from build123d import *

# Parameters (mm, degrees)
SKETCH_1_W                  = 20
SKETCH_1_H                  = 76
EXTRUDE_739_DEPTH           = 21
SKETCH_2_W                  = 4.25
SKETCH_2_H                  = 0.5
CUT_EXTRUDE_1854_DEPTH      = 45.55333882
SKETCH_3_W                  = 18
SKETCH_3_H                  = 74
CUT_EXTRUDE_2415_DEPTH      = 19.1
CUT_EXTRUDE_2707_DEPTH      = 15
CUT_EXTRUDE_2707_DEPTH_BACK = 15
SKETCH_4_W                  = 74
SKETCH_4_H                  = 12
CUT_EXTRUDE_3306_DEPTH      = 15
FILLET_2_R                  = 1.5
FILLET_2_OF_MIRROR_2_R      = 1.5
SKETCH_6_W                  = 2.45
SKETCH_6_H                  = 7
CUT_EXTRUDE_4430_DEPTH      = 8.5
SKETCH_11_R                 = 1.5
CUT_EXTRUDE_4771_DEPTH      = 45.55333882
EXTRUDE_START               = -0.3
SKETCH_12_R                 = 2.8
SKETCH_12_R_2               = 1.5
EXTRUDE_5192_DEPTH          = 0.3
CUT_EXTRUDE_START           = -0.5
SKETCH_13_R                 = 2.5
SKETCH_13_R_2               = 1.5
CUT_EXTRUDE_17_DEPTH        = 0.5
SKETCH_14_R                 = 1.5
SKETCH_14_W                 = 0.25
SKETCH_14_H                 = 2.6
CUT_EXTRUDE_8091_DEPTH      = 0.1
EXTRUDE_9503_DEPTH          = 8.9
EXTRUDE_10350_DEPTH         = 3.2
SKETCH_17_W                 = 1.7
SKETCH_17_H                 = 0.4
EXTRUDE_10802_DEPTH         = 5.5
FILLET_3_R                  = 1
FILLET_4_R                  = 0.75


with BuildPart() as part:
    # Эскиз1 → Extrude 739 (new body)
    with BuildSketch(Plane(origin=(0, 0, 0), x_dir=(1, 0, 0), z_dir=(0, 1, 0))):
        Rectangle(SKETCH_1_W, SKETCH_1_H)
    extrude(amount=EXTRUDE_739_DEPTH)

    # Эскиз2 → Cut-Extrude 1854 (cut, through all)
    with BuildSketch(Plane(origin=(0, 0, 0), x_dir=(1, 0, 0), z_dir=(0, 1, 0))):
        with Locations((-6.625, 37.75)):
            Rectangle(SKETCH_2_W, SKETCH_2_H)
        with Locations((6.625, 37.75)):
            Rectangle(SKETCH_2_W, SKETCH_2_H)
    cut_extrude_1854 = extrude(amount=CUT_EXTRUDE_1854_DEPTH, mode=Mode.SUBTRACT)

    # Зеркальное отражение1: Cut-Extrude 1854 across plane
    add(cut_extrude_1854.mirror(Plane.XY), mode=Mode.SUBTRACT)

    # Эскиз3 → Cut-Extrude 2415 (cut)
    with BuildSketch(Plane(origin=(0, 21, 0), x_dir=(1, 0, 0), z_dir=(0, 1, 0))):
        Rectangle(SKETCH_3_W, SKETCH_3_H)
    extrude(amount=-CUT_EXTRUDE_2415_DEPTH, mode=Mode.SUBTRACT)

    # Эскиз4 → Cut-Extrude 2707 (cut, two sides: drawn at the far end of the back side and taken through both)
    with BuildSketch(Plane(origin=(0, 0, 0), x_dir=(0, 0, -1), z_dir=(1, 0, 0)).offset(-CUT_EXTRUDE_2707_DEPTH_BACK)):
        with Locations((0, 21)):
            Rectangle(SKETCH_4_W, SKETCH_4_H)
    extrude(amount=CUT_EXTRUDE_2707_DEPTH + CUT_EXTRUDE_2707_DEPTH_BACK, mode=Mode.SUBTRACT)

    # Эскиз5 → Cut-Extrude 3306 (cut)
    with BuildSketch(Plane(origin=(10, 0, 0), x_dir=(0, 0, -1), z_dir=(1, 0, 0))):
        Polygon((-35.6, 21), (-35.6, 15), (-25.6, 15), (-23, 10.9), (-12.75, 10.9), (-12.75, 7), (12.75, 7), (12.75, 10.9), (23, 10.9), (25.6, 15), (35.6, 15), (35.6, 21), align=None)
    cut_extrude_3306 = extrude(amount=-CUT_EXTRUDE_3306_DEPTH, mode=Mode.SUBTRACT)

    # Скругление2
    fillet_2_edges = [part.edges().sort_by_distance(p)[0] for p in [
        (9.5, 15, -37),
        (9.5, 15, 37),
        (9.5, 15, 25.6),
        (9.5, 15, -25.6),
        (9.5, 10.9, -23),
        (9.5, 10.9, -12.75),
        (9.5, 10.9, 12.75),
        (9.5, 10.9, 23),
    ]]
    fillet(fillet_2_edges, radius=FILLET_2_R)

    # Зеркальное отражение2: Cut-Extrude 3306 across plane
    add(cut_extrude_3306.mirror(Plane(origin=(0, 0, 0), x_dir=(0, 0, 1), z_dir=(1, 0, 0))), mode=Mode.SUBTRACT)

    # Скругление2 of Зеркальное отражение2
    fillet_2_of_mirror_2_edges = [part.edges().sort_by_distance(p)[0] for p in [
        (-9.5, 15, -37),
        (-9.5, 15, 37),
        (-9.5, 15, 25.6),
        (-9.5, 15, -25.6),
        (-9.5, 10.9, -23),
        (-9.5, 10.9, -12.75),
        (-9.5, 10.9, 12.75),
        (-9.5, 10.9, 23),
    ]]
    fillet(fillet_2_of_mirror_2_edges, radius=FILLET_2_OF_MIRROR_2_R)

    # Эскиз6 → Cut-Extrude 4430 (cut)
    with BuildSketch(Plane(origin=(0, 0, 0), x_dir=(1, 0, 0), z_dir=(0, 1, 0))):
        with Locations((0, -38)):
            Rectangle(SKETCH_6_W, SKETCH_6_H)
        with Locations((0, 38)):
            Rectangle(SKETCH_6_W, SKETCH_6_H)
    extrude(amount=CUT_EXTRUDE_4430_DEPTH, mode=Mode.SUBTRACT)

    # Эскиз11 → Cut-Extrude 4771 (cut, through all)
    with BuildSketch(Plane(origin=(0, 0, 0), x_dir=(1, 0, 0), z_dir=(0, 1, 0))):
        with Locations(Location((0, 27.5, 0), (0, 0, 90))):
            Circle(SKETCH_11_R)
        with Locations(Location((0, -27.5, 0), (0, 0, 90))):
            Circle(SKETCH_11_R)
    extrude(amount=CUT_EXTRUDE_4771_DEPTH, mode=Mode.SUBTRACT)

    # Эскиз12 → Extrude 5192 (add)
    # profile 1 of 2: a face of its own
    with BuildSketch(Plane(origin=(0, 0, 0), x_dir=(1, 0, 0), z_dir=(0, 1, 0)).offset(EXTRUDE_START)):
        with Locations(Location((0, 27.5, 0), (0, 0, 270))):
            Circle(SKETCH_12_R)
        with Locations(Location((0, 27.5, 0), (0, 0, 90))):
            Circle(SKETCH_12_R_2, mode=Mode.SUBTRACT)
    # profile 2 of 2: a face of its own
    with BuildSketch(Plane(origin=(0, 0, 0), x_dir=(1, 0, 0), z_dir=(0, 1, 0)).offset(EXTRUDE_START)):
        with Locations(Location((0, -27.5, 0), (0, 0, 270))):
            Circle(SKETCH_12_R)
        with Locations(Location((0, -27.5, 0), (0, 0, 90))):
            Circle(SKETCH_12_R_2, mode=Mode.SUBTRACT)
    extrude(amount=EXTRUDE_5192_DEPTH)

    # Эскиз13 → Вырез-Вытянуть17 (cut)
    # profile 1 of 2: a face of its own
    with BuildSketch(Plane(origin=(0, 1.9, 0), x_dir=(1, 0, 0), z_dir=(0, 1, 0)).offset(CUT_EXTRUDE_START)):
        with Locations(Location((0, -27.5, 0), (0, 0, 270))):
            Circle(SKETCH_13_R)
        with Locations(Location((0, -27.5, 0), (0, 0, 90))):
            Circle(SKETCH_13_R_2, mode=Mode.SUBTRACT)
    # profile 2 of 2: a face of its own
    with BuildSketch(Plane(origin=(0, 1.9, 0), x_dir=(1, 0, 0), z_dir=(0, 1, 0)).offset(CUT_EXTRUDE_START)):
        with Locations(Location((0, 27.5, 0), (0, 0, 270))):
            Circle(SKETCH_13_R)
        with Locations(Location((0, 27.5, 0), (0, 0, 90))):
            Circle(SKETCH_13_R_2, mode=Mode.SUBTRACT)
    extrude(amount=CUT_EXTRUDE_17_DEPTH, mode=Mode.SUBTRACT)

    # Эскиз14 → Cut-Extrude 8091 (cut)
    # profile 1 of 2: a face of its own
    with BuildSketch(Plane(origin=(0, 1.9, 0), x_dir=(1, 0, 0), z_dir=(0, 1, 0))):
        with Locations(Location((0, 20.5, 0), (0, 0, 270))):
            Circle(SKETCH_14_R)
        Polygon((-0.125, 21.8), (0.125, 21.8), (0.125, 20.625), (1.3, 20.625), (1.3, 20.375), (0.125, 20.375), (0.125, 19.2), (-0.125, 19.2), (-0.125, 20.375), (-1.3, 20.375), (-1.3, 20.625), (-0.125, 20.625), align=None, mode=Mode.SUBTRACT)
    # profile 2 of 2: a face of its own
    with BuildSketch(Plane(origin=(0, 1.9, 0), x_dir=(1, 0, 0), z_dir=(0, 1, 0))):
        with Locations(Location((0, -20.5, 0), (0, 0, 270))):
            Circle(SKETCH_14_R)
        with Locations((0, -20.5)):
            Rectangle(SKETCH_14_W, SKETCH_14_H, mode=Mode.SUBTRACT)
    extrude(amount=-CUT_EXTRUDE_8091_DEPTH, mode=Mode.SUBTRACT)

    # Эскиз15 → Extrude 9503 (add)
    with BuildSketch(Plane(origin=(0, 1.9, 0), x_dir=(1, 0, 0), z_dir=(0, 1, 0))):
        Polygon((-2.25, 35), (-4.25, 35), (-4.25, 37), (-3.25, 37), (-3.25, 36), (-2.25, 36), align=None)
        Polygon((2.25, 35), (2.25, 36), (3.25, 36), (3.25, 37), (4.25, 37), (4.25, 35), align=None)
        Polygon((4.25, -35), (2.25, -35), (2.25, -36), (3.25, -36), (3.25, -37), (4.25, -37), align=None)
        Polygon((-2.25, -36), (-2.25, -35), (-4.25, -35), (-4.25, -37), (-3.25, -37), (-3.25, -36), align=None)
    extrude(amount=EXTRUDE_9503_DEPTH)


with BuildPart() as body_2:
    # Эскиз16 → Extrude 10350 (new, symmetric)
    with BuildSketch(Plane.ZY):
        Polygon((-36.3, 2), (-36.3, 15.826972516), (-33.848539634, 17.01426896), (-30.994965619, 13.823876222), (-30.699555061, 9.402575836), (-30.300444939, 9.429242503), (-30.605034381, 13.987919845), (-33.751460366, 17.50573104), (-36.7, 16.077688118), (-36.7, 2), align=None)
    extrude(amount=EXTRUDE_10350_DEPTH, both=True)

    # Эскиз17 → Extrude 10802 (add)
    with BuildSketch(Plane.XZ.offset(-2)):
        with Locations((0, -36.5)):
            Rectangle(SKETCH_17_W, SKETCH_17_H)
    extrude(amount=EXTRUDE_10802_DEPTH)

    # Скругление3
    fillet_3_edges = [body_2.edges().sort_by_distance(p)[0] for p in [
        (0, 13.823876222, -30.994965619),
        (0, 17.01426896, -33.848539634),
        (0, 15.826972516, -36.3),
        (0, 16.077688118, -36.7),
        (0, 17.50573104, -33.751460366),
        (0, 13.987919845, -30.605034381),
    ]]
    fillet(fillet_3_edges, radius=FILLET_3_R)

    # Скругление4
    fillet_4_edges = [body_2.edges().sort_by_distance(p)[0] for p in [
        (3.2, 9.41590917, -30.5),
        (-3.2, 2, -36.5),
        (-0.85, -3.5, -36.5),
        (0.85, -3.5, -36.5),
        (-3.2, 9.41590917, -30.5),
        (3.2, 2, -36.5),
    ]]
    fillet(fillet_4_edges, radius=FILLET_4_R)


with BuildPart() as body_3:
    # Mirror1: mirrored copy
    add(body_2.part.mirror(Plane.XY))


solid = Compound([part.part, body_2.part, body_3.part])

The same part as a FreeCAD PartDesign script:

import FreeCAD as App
import Part
import Sketcher
from FreeCAD import Vector


def edges_at(feature, points):
    """Names of the edges that pass closest to the given points."""
    edges = feature.Shape.Edges
    near = lambda p: min(range(len(edges)), key=lambda i: edges[i].distToShape(Part.Vertex(*p))[0])
    return sorted({f"Edge{near(p) + 1}" for p in points})


def add_polygon(sketch, points):
    """Adds a closed chain of lines whose ends are joined by coincident constraints."""
    first, n = sketch.GeometryCount, len(points)
    for a, b in zip(points, points[1:] + points[:1]):
        sketch.addGeometry(Part.LineSegment(App.Vector(*a, 0), App.Vector(*b, 0)), False)
    for i in range(n):
        sketch.addConstraint(Sketcher.Constraint("Coincident", first + i, 2, first + (i + 1) % n, 1))

doc = App.newDocument("Part")
body = doc.addObject("PartDesign::Body", "Body")

# Sketch on XZ plane
sketch1 = body.newObject("Sketcher::SketchObject", "Sketch")
sketch1.AttachmentSupport = (doc.getObject("XZ_Plane"), [""])
sketch1.MapMode = "FlatFace"
add_polygon(sketch1, [(-10, -38), (-10, 38), (10, 38), (10, -38)])  # lines 0-3
sketch1.addConstraint([
    Sketcher.Constraint("Vertical", 0),
    Sketcher.Constraint("Horizontal", 1),
    Sketcher.Constraint("Vertical", 2),
    Sketcher.Constraint("Horizontal", 3),
    Sketcher.Constraint("Symmetric", 0, 2, 2, 2, -1, 1),
    Sketcher.Constraint("DistanceX", 1, 1, 1, 2, 20.0),
    Sketcher.Constraint("DistanceY", 0, 1, 0, 2, 76.0),
])
pad1 = body.newObject("PartDesign::Pad", "Pad")
pad1.Profile = sketch1
pad1.Length = 21
pad1.Reversed = True

# Sketch on XZ plane
sketch2 = body.newObject("Sketcher::SketchObject", "Sketch001")
sketch2.AttachmentSupport = (doc.getObject("XZ_Plane"), [""])
sketch2.MapMode = "FlatFace"
add_polygon(sketch2, [(-8.8, -38), (-8.8, -37.5), (-4.5, -37.5), (-4.5, -38)])  # lines 0-3
add_polygon(sketch2, [(4.5, -38), (4.5, -37.5), (8.8, -37.5), (8.8, -38)])  # lines 4-7
sketch2.addConstraint([
    Sketcher.Constraint("Vertical", 0),
    Sketcher.Constraint("Horizontal", 1),
    Sketcher.Constraint("Vertical", 2),
    Sketcher.Constraint("Horizontal", 3),
    Sketcher.Constraint("Vertical", 4),
    Sketcher.Constraint("Horizontal", 5),
    Sketcher.Constraint("Vertical", 6),
    Sketcher.Constraint("Horizontal", 7),
    Sketcher.Constraint("Symmetric", 1, 2, 4, 2, -2),
    Sketcher.Constraint("Symmetric", 3, 2, 6, 2, -2),
    Sketcher.Constraint("DistanceY", 0, 1, 0, 2, 0.5),
    Sketcher.Constraint("DistanceY", 2, 2, -1, 1, 38.0),
    Sketcher.Constraint("DistanceX", 1, 2, 4, 2, 9.0),
    Sketcher.Constraint("DistanceX", 1, 1, 1, 2, 4.25),
])
pocket1 = body.newObject("PartDesign::Pocket", "Pocket")
pocket1.Profile = sketch2
pocket1.Type = "ThroughAll"
doc.recompute()

mirrored = body.newObject("PartDesign::Mirrored", "Mirrored")
mirrored.Originals = [pocket1]
mirrored.MirrorPlane = (doc.getObject("XY_Plane"), [""])
body.Tip = mirrored

# Sketch on XZ plane
sketch3 = body.newObject("Sketcher::SketchObject", "Sketch002")
sketch3.AttachmentSupport = (doc.getObject("XZ_Plane"), [""])
sketch3.MapMode = "FlatFace"
sketch3.AttachmentOffset = App.Placement(Vector(0, 0, -21), App.Rotation())
add_polygon(sketch3, [(-9, -37), (-9, 37), (9, 37), (9, -37)])  # lines 0-3
sketch3.addConstraint([
    Sketcher.Constraint("Vertical", 0),
    Sketcher.Constraint("Horizontal", 1),
    Sketcher.Constraint("Vertical", 2),
    Sketcher.Constraint("Horizontal", 3),
    Sketcher.Constraint("Symmetric", 0, 2, 2, 2, -1, 1),
    Sketcher.Constraint("DistanceX", 1, 1, 1, 2, 18.0),
    Sketcher.Constraint("DistanceY", 0, 1, 0, 2, 74.0),
])
pocket2 = body.newObject("PartDesign::Pocket", "Pocket001")
pocket2.Profile = sketch3
pocket2.Length = 19.1
pocket2.Reversed = True

# Sketch on YZ plane
sketch4 = body.newObject("Sketcher::SketchObject", "Sketch003")
sketch4.AttachmentSupport = (doc.getObject("YZ_Plane"), [""])
sketch4.MapMode = "FlatFace"
add_polygon(sketch4, [(27, 37), (15, 37), (15, -37), (27, -37)])  # lines 0-3
sketch4.addConstraint([
    Sketcher.Constraint("Horizontal", 0),
    Sketcher.Constraint("Vertical", 1),
    Sketcher.Constraint("Horizontal", 2),
    Sketcher.Constraint("Vertical", 3),
    Sketcher.Constraint("DistanceX", 0, 2, 0, 1, 12.0),
    Sketcher.Constraint("DistanceY", 1, 2, 1, 1, 74.0),
    Sketcher.Constraint("DistanceX", -1, 1, 0, 2, 15.0),
    Sketcher.Constraint("DistanceY", -1, 1, 0, 2, 37.0),
])
pocket3 = body.newObject("PartDesign::Pocket", "Pocket002")
pocket3.Profile = sketch4
pocket3.Type = "ThroughAll"
pocket3.Midplane = True

# Sketch on YZ plane
sketch5 = body.newObject("Sketcher::SketchObject", "Sketch004")
sketch5.AttachmentSupport = (doc.getObject("YZ_Plane"), [""])
sketch5.MapMode = "FlatFace"
sketch5.AttachmentOffset = App.Placement(Vector(0, 0, 10), App.Rotation())
add_polygon(sketch5, [(21, 35.6), (15, 35.6), (15, 25.6), (10.9, 23), (10.9, 12.8), (7, 12.8), (7, -12.8), (10.9, -12.8), (10.9, -23), (15, -25.6), (15, -35.6), (21, -35.6)])  # lines 0-11
sketch5.addConstraint([
    Sketcher.Constraint("Horizontal", 0),
    Sketcher.Constraint("Vertical", 1),
    Sketcher.Constraint("Vertical", 3),
    Sketcher.Constraint("Horizontal", 4),
    Sketcher.Constraint("Vertical", 5),
    Sketcher.Constraint("Horizontal", 6),
    Sketcher.Constraint("Vertical", 7),
    Sketcher.Constraint("Vertical", 9),
    Sketcher.Constraint("Horizontal", 10),
    Sketcher.Constraint("Vertical", 11),
    Sketcher.Constraint("Symmetric", 3, 2, 6, 2, -1),
    Sketcher.Constraint("Symmetric", 1, 2, 8, 2, -1),
    Sketcher.Constraint("Equal", 3, 7),
    Sketcher.Constraint("Equal", 1, 9),
    Sketcher.Constraint("DistanceX", 0, 2, 0, 1, 6.0),
    Sketcher.Constraint("DistanceY", 1, 2, 1, 1, 10.0),
    Sketcher.Constraint("DistanceX", 4, 2, 4, 1, 3.9),
    Sketcher.Constraint("DistanceY", 5, 2, 5, 1, 25.5),
    Sketcher.Constraint("DistanceY", 11, 1, 11, 2, 71.2),
    Sketcher.Constraint("DistanceX", -1, 1, 0, 2, 15.0),
    Sketcher.Constraint("DistanceY", -1, 1, 2, 2, 23.0),
    Sketcher.Constraint("DistanceX", -1, 1, 4, 2, 7.0),
])
pocket4 = body.newObject("PartDesign::Pocket", "Pocket003")
pocket4.Profile = sketch5
pocket4.Length = 15
doc.recompute()

fillet = body.newObject("PartDesign::Fillet", "Fillet")
fillet.Base = (pocket4, edges_at(pocket4, [
    (9.5, 15, -37),
    (9.5, 15, 37),
    (9.5, 15, 25.6),
    (9.5, 15, -25.6),
    (9.5, 10.9, -23),
    (9.5, 10.9, -12.75),
    (9.5, 10.9, 12.75),
    (9.5, 10.9, 23),
]))
fillet.Radius = 1.5
doc.recompute()

mirrored2 = body.newObject("PartDesign::Mirrored", "Mirrored001")
mirrored2.Originals = [pocket4]
mirrored2.MirrorPlane = (doc.getObject("YZ_Plane"), [""])
body.Tip = mirrored2
doc.recompute()

fillet2 = body.newObject("PartDesign::Fillet", "Fillet001")
fillet2.Base = (mirrored2, edges_at(mirrored2, [
    (-9.5, 15, -37),
    (-9.5, 15, 37),
    (-9.5, 15, 25.6),
    (-9.5, 15, -25.6),
    (-9.5, 10.9, -23),
    (-9.5, 10.9, -12.75),
    (-9.5, 10.9, 12.75),
    (-9.5, 10.9, 23),
]))
fillet2.Radius = 1.5

# Sketch on XZ plane
sketch6 = body.newObject("Sketcher::SketchObject", "Sketch005")
sketch6.AttachmentSupport = (doc.getObject("XZ_Plane"), [""])
sketch6.MapMode = "FlatFace"
add_polygon(sketch6, [(-1.2, 34.5), (-1.2, 41.5), (1.2, 41.5), (1.2, 34.5)])  # lines 0-3
add_polygon(sketch6, [(-1.2, -41.5), (-1.2, -34.5), (1.2, -34.5), (1.2, -41.5)])  # lines 4-7
sketch6.addConstraint([
    Sketcher.Constraint("Vertical", 0),
    Sketcher.Constraint("Horizontal", 1),
    Sketcher.Constraint("Vertical", 2),
    Sketcher.Constraint("Horizontal", 3),
    Sketcher.Constraint("Vertical", 4),
    Sketcher.Constraint("Horizontal", 5),
    Sketcher.Constraint("Vertical", 6),
    Sketcher.Constraint("Horizontal", 7),
    Sketcher.Constraint("Symmetric", 2, 2, 4, 2, -1, 1),
    Sketcher.Constraint("Symmetric", 0, 2, 6, 2, -1, 1),
    Sketcher.Constraint("Vertical", 3, 2, 4, 2),
    Sketcher.Constraint("DistanceY", 0, 1, 0, 2, 7.0),
    Sketcher.Constraint("DistanceY", 4, 2, 3, 2, 69.0),
    Sketcher.Constraint("DistanceX", 1, 1, 1, 2, 2.45),
])
pocket5 = body.newObject("PartDesign::Pocket", "Pocket004")
pocket5.Profile = sketch6
pocket5.Length = 8.5

# Sketch on XZ plane
sketch7 = body.newObject("Sketcher::SketchObject", "Sketch006")
sketch7.AttachmentSupport = (doc.getObject("XZ_Plane"), [""])
sketch7.MapMode = "FlatFace"
sketch7.addGeometry([
    Part.Circle(Vector(0, -27.5, 0), Vector(0, 0, 1), 1.5),
    Part.Circle(Vector(0, 27.5, 0), Vector(0, 0, 1), 1.5),
], False)
sketch7.addConstraint([
    Sketcher.Constraint("Equal", 0, 1),
    Sketcher.Constraint("Symmetric", 0, 3, 1, 3, -1, 1),
    Sketcher.Constraint("PointOnObject", 0, 3, -2),
    Sketcher.Constraint("Diameter", 0, 3.0),
    Sketcher.Constraint("DistanceY", 0, 3, 1, 3, 55.0),
])
pocket6 = body.newObject("PartDesign::Pocket", "Pocket005")
pocket6.Profile = sketch7
pocket6.Type = "ThroughAll"

# Sketch on XZ plane
sketch8 = body.newObject("Sketcher::SketchObject", "Sketch007")
sketch8.AttachmentSupport = (doc.getObject("XZ_Plane"), [""])
sketch8.MapMode = "FlatFace"
sketch8.AttachmentOffset = App.Placement(Vector(0, 0, 0.3), App.Rotation())
sketch8.addGeometry([
    Part.Circle(Vector(0, -27.5, 0), Vector(0, 0, 1), 2.8),
    Part.Circle(Vector(0, -27.5, 0), Vector(0, 0, 1), 1.5),
    Part.Circle(Vector(0, 27.5, 0), Vector(0, 0, 1), 2.8),
    Part.Circle(Vector(0, 27.5, 0), Vector(0, 0, 1), 1.5),
], False)
sketch8.addConstraint([
    Sketcher.Constraint("Coincident", 1, 3, 0, 3),
    Sketcher.Constraint("Coincident", 3, 3, 2, 3),
    Sketcher.Constraint("Equal", 0, 2),
    Sketcher.Constraint("Equal", 1, 3),
    Sketcher.Constraint("Symmetric", 0, 3, 2, 3, -1, 1),
    Sketcher.Constraint("PointOnObject", 0, 3, -2),
    Sketcher.Constraint("Diameter", 1, 3.0),
    Sketcher.Constraint("Diameter", 0, 5.6),
    Sketcher.Constraint("DistanceY", 0, 3, 2, 3, 55.0),
])
pad2 = body.newObject("PartDesign::Pad", "Pad001")
pad2.Profile = sketch8
pad2.Length = 0.3
pad2.Reversed = True

# Sketch on XZ plane
sketch9 = body.newObject("Sketcher::SketchObject", "Sketch008")
sketch9.AttachmentSupport = (doc.getObject("XZ_Plane"), [""])
sketch9.MapMode = "FlatFace"
sketch9.AttachmentOffset = App.Placement(Vector(0, 0, -1.4), App.Rotation())
sketch9.addGeometry([
    Part.Circle(Vector(0, 27.5, 0), Vector(0, 0, 1), 2.5),
    Part.Circle(Vector(0, 27.5, 0), Vector(0, 0, 1), 1.5),
    Part.Circle(Vector(0, -27.5, 0), Vector(0, 0, 1), 2.5),
    Part.Circle(Vector(0, -27.5, 0), Vector(0, 0, 1), 1.5),
], False)
sketch9.addConstraint([
    Sketcher.Constraint("Coincident", 1, 3, 0, 3),
    Sketcher.Constraint("Coincident", 3, 3, 2, 3),
    Sketcher.Constraint("Equal", 0, 2),
    Sketcher.Constraint("Equal", 1, 3),
    Sketcher.Constraint("Symmetric", 0, 3, 2, 3, -1, 1),
    Sketcher.Constraint("PointOnObject", 0, 3, -2),
    Sketcher.Constraint("Diameter", 0, 5.0),
    Sketcher.Constraint("Diameter", 1, 3.0),
    Sketcher.Constraint("DistanceY", 2, 3, 0, 3, 55.0),
])
pocket7 = body.newObject("PartDesign::Pocket", "Pocket006")
pocket7.Profile = sketch9
pocket7.Length = 0.5

# Sketch on XZ plane
sketch10 = body.newObject("Sketcher::SketchObject", "Sketch009")
sketch10.AttachmentSupport = (doc.getObject("XZ_Plane"), [""])
sketch10.MapMode = "FlatFace"
sketch10.AttachmentOffset = App.Placement(Vector(0, 0, -1.9), App.Rotation())
sketch10.addGeometry(Part.Circle(Vector(0, -20.5, 0), Vector(0, 0, 1), 1.5), False)  # 0
add_polygon(sketch10, [(-0.12, -20.62), (-0.12, -21.8), (0.12, -21.8), (0.12, -20.62), (1.3, -20.62), (1.3, -20.38), (0.12, -20.38), (0.12, -19.2), (-0.12, -19.2), (-0.12, -20.38), (-1.3, -20.38), (-1.3, -20.62)])  # lines 1-12
sketch10.addGeometry(Part.Circle(Vector(0, 20.5, 0), Vector(0, 0, 1), 1.5), False)  # 13
add_polygon(sketch10, [(0.12, 21.8), (-0.12, 21.8), (-0.12, 19.2), (0.12, 19.2)])  # lines 14-17
sketch10.addConstraint([
    Sketcher.Constraint("Vertical", 1),
    Sketcher.Constraint("Horizontal", 2),
    Sketcher.Constraint("Vertical", 3),
    Sketcher.Constraint("Horizontal", 4),
    Sketcher.Constraint("Vertical", 5),
    Sketcher.Constraint("Horizontal", 6),
    Sketcher.Constraint("Vertical", 7),
    Sketcher.Constraint("Horizontal", 8),
    Sketcher.Constraint("Vertical", 9),
    Sketcher.Constraint("Horizontal", 10),
    Sketcher.Constraint("Vertical", 11),
    Sketcher.Constraint("Horizontal", 12),
    Sketcher.Constraint("Horizontal", 14),
    Sketcher.Constraint("Vertical", 15),
    Sketcher.Constraint("Horizontal", 16),
    Sketcher.Constraint("Vertical", 17),
    Sketcher.Constraint("Equal", 0, 13),
    Sketcher.Constraint("Symmetric", 0, 3, 13, 3, -1, 1),
    Sketcher.Constraint("Symmetric", 2, 2, 14, 2, -1, 1),
    Sketcher.Constraint("Symmetric", 7, 2, 15, 2, -1, 1),
    Sketcher.Constraint("Symmetric", 6, 2, 9, 2, -2),
    Sketcher.Constraint("Symmetric", 4, 2, 11, 2, -2),
    Sketcher.Constraint("PointOnObject", 0, 3, -2),
    Sketcher.Constraint("Vertical", 1, 2, 8, 2),
    Sketcher.Constraint("Vertical", 7, 2, 16, 2),
    Sketcher.Constraint("Equal", 12, 1),
    Sketcher.Constraint("Equal", 16, 5),
    Sketcher.Constraint("Equal", 3, 7),
    Sketcher.Constraint("Diameter", 0, 3.0),
    Sketcher.Constraint("DistanceY", 15, 2, 15, 1, 2.6),
    Sketcher.Constraint("DistanceY", 0, 3, 13, 3, 41.0),
    Sketcher.Constraint("DistanceY", 8, 2, 14, 2, 41.0),
    Sketcher.Constraint("DistanceX", 2, 1, 2, 2, 0.25),
])
pocket8 = body.newObject("PartDesign::Pocket", "Pocket007")
pocket8.Profile = sketch10
pocket8.Length = 0.1
pocket8.Reversed = True

# Sketch on XZ plane
sketch11 = body.newObject("Sketcher::SketchObject", "Sketch010")
sketch11.AttachmentSupport = (doc.getObject("XZ_Plane"), [""])
sketch11.MapMode = "FlatFace"
sketch11.AttachmentOffset = App.Placement(Vector(0, 0, -1.9), App.Rotation())
add_polygon(sketch11, [(-4.2, -35), (-2.2, -35), (-2.2, -36), (-3.2, -36), (-3.2, -37), (-4.2, -37)])  # lines 0-5
add_polygon(sketch11, [(2.2, -36), (2.2, -35), (4.2, -35), (4.2, -37), (3.2, -37), (3.2, -36)])  # lines 6-11
add_polygon(sketch11, [(4.2, 35), (2.2, 35), (2.2, 36), (3.2, 36), (3.2, 37), (4.2, 37)])  # lines 12-17
add_polygon(sketch11, [(-2.2, 36), (-2.2, 35), (-4.2, 35), (-4.2, 37), (-3.2, 37), (-3.2, 36)])  # lines 18-23
sketch11.addConstraint([
    Sketcher.Constraint("Horizontal", 0),
    Sketcher.Constraint("Vertical", 1),
    Sketcher.Constraint("Horizontal", 2),
    Sketcher.Constraint("Vertical", 3),
    Sketcher.Constraint("Horizontal", 4),
    Sketcher.Constraint("Vertical", 5),
    Sketcher.Constraint("Vertical", 6),
    Sketcher.Constraint("Horizontal", 7),
    Sketcher.Constraint("Vertical", 8),
    Sketcher.Constraint("Horizontal", 9),
    Sketcher.Constraint("Vertical", 10),
    Sketcher.Constraint("Horizontal", 11),
    Sketcher.Constraint("Horizontal", 12),
    Sketcher.Constraint("Vertical", 13),
    Sketcher.Constraint("Horizontal", 14),
    Sketcher.Constraint("Vertical", 15),
    Sketcher.Constraint("Horizontal", 16),
    Sketcher.Constraint("Vertical", 17),
    Sketcher.Constraint("Vertical", 18),
    Sketcher.Constraint("Horizontal", 19),
    Sketcher.Constraint("Vertical", 20),
    Sketcher.Constraint("Horizontal", 21),
    Sketcher.Constraint("Vertical", 22),
    Sketcher.Constraint("Horizontal", 23),
    Sketcher.Constraint("Symmetric", 0, 2, 12, 2, -1, 1),
    Sketcher.Constraint("Symmetric", 2, 2, 14, 2, -1, 1),
    Sketcher.Constraint("Symmetric", 4, 2, 16, 2, -1, 1),
    Sketcher.Constraint("Symmetric", 6, 2, 18, 2, -1, 1),
    Sketcher.Constraint("Symmetric", 8, 2, 20, 2, -1, 1),
    Sketcher.Constraint("Symmetric", 10, 2, 22, 2, -1, 1),
    Sketcher.Constraint("Symmetric", 0, 2, 6, 2, -2),
    Sketcher.Constraint("Symmetric", 4, 2, 8, 2, -2),
    Sketcher.Constraint("Symmetric", 2, 2, 10, 2, -2),
    Sketcher.Constraint("Equal", 2, 4),
    Sketcher.Constraint("Equal", 23, 1),
    Sketcher.Constraint("Equal", 1, 3),
    Sketcher.Constraint("DistanceX", 0, 1, 0, 2, 2.0),
    Sketcher.Constraint("DistanceY", 0, 2, -1, 1, 35.0),
    Sketcher.Constraint("DistanceX", 0, 2, 6, 2, 4.5),
])
pad3 = body.newObject("PartDesign::Pad", "Pad002")
pad3.Profile = sketch11
pad3.Length = 8.9
pad3.Reversed = True
body2 = doc.addObject("PartDesign::Body", "Body001")

# Sketch on YZ plane
sketch12 = body2.newObject("Sketcher::SketchObject", "Sketch011")
sketch12.AttachmentSupport = (doc.getObject("YZ_Plane001"), [""])
sketch12.MapMode = "FlatFace"
add_polygon(sketch12, [(2, -36.3), (15.826973, -36.3), (17.014269, -33.84854), (13.823876, -30.994966), (9.402576, -30.699555), (9.429243, -30.300445), (13.98792, -30.605034), (17.505731, -33.75146), (16.077688, -36.7), (2, -36.7)])  # lines 0-9
sketch12.addConstraint([
    Sketcher.Constraint("Horizontal", 0),
    Sketcher.Constraint("Horizontal", 8),
    Sketcher.Constraint("Vertical", 9),
    Sketcher.Constraint("DistanceY", 9, 1, 9, 2, 0.4),
    Sketcher.Constraint("DistanceX", -1, 1, 8, 2, 2.0),
    Sketcher.Constraint("Distance", 4, 0.4),
    Sketcher.Constraint("DistanceY", 0, 2, -1, 1, 36.3),
    Sketcher.Constraint("DistanceX", 8, 2, 8, 1, 14.077688),
    Sketcher.Constraint("DistanceX", 3, 2, 2, 2, 4.4213),
    Sketcher.Constraint("Distance", 2, 4.280361),
    Sketcher.Constraint("Distance", 3, 4.431158),
    Sketcher.Constraint("Distance", 5, 4.568842),
    Sketcher.Constraint("Distance", 6, 4.719639),
    Sketcher.Constraint("DistanceX", 0, 1, 0, 2, 13.826973),
    Sketcher.Constraint("DistanceX", -1, 1, 1, 2, 17.014269),
    Sketcher.Constraint("DistanceY", 1, 2, -1, 1, 33.84854),
    Sketcher.Constraint("DistanceX", -1, 1, 5, 2, 13.98792),
    Sketcher.Constraint("DistanceX", -1, 1, 6, 2, 17.505731),
    Sketcher.Constraint("DistanceY", 6, 2, -1, 1, 33.75146),
    Sketcher.Constraint("DistanceY", 3, 2, 4, 2, 0.39911),
])
pad4 = body2.newObject("PartDesign::Pad", "Pad003")
pad4.Profile = sketch12
pad4.Length = 6.4
pad4.Midplane = True

# Sketch on XZ plane
sketch13 = body2.newObject("Sketcher::SketchObject", "Sketch012")
sketch13.AttachmentSupport = (doc.getObject("XZ_Plane001"), [""])
sketch13.MapMode = "FlatFace"
sketch13.AttachmentOffset = App.Placement(Vector(0, 0, -2), App.Rotation())
add_polygon(sketch13, [(-0.85, -36.3), (-0.85, -36.7), (0.85, -36.7), (0.85, -36.3)])  # lines 0-3
sketch13.addConstraint([
    Sketcher.Constraint("Vertical", 0),
    Sketcher.Constraint("Horizontal", 1),
    Sketcher.Constraint("Vertical", 2),
    Sketcher.Constraint("Horizontal", 3),
    Sketcher.Constraint("DistanceX", 1, 1, 1, 2, 1.7),
    Sketcher.Constraint("DistanceY", 0, 2, 0, 1, 0.4),
    Sketcher.Constraint("DistanceY", 0, 2, -1, 1, 36.7),
    Sketcher.Constraint("DistanceX", 0, 2, -1, 1, 0.85),
])
pad5 = body2.newObject("PartDesign::Pad", "Pad004")
pad5.Profile = sketch13
pad5.Length = 5.5
doc.recompute()

fillet3 = body2.newObject("PartDesign::Fillet", "Fillet002")
fillet3.Base = (pad5, edges_at(pad5, [
    (0, 13.824, -30.995),
    (0, 17.014, -33.849),
    (0, 15.827, -36.3),
    (0, 16.078, -36.7),
    (0, 17.506, -33.751),
    (0, 13.988, -30.605),
]))
fillet3.Radius = 1
doc.recompute()

fillet4 = body2.newObject("PartDesign::Fillet", "Fillet003")
fillet4.Base = (fillet3, edges_at(fillet3, [
    (3.2, 9.416, -30.5),
    (-3.2, 2, -36.5),
    (-0.85, -3.5, -36.5),
    (0.85, -3.5, -36.5),
    (-3.2, 9.416, -30.5),
    (3.2, 2, -36.5),
]))
fillet4.Radius = 0.75
body3 = doc.addObject("PartDesign::Body", "Body002")
doc.recompute()

mirroring = doc.addObject("Part::Mirroring", "Mirroring")
mirroring.Source = body2
mirroring.Base = Vector(0, 0, 0)
mirroring.Normal = Vector(0, 0, 1)
body3.BaseFeature = mirroring
doc.recompute()
mirroring.Visibility = False

doc.recompute()
